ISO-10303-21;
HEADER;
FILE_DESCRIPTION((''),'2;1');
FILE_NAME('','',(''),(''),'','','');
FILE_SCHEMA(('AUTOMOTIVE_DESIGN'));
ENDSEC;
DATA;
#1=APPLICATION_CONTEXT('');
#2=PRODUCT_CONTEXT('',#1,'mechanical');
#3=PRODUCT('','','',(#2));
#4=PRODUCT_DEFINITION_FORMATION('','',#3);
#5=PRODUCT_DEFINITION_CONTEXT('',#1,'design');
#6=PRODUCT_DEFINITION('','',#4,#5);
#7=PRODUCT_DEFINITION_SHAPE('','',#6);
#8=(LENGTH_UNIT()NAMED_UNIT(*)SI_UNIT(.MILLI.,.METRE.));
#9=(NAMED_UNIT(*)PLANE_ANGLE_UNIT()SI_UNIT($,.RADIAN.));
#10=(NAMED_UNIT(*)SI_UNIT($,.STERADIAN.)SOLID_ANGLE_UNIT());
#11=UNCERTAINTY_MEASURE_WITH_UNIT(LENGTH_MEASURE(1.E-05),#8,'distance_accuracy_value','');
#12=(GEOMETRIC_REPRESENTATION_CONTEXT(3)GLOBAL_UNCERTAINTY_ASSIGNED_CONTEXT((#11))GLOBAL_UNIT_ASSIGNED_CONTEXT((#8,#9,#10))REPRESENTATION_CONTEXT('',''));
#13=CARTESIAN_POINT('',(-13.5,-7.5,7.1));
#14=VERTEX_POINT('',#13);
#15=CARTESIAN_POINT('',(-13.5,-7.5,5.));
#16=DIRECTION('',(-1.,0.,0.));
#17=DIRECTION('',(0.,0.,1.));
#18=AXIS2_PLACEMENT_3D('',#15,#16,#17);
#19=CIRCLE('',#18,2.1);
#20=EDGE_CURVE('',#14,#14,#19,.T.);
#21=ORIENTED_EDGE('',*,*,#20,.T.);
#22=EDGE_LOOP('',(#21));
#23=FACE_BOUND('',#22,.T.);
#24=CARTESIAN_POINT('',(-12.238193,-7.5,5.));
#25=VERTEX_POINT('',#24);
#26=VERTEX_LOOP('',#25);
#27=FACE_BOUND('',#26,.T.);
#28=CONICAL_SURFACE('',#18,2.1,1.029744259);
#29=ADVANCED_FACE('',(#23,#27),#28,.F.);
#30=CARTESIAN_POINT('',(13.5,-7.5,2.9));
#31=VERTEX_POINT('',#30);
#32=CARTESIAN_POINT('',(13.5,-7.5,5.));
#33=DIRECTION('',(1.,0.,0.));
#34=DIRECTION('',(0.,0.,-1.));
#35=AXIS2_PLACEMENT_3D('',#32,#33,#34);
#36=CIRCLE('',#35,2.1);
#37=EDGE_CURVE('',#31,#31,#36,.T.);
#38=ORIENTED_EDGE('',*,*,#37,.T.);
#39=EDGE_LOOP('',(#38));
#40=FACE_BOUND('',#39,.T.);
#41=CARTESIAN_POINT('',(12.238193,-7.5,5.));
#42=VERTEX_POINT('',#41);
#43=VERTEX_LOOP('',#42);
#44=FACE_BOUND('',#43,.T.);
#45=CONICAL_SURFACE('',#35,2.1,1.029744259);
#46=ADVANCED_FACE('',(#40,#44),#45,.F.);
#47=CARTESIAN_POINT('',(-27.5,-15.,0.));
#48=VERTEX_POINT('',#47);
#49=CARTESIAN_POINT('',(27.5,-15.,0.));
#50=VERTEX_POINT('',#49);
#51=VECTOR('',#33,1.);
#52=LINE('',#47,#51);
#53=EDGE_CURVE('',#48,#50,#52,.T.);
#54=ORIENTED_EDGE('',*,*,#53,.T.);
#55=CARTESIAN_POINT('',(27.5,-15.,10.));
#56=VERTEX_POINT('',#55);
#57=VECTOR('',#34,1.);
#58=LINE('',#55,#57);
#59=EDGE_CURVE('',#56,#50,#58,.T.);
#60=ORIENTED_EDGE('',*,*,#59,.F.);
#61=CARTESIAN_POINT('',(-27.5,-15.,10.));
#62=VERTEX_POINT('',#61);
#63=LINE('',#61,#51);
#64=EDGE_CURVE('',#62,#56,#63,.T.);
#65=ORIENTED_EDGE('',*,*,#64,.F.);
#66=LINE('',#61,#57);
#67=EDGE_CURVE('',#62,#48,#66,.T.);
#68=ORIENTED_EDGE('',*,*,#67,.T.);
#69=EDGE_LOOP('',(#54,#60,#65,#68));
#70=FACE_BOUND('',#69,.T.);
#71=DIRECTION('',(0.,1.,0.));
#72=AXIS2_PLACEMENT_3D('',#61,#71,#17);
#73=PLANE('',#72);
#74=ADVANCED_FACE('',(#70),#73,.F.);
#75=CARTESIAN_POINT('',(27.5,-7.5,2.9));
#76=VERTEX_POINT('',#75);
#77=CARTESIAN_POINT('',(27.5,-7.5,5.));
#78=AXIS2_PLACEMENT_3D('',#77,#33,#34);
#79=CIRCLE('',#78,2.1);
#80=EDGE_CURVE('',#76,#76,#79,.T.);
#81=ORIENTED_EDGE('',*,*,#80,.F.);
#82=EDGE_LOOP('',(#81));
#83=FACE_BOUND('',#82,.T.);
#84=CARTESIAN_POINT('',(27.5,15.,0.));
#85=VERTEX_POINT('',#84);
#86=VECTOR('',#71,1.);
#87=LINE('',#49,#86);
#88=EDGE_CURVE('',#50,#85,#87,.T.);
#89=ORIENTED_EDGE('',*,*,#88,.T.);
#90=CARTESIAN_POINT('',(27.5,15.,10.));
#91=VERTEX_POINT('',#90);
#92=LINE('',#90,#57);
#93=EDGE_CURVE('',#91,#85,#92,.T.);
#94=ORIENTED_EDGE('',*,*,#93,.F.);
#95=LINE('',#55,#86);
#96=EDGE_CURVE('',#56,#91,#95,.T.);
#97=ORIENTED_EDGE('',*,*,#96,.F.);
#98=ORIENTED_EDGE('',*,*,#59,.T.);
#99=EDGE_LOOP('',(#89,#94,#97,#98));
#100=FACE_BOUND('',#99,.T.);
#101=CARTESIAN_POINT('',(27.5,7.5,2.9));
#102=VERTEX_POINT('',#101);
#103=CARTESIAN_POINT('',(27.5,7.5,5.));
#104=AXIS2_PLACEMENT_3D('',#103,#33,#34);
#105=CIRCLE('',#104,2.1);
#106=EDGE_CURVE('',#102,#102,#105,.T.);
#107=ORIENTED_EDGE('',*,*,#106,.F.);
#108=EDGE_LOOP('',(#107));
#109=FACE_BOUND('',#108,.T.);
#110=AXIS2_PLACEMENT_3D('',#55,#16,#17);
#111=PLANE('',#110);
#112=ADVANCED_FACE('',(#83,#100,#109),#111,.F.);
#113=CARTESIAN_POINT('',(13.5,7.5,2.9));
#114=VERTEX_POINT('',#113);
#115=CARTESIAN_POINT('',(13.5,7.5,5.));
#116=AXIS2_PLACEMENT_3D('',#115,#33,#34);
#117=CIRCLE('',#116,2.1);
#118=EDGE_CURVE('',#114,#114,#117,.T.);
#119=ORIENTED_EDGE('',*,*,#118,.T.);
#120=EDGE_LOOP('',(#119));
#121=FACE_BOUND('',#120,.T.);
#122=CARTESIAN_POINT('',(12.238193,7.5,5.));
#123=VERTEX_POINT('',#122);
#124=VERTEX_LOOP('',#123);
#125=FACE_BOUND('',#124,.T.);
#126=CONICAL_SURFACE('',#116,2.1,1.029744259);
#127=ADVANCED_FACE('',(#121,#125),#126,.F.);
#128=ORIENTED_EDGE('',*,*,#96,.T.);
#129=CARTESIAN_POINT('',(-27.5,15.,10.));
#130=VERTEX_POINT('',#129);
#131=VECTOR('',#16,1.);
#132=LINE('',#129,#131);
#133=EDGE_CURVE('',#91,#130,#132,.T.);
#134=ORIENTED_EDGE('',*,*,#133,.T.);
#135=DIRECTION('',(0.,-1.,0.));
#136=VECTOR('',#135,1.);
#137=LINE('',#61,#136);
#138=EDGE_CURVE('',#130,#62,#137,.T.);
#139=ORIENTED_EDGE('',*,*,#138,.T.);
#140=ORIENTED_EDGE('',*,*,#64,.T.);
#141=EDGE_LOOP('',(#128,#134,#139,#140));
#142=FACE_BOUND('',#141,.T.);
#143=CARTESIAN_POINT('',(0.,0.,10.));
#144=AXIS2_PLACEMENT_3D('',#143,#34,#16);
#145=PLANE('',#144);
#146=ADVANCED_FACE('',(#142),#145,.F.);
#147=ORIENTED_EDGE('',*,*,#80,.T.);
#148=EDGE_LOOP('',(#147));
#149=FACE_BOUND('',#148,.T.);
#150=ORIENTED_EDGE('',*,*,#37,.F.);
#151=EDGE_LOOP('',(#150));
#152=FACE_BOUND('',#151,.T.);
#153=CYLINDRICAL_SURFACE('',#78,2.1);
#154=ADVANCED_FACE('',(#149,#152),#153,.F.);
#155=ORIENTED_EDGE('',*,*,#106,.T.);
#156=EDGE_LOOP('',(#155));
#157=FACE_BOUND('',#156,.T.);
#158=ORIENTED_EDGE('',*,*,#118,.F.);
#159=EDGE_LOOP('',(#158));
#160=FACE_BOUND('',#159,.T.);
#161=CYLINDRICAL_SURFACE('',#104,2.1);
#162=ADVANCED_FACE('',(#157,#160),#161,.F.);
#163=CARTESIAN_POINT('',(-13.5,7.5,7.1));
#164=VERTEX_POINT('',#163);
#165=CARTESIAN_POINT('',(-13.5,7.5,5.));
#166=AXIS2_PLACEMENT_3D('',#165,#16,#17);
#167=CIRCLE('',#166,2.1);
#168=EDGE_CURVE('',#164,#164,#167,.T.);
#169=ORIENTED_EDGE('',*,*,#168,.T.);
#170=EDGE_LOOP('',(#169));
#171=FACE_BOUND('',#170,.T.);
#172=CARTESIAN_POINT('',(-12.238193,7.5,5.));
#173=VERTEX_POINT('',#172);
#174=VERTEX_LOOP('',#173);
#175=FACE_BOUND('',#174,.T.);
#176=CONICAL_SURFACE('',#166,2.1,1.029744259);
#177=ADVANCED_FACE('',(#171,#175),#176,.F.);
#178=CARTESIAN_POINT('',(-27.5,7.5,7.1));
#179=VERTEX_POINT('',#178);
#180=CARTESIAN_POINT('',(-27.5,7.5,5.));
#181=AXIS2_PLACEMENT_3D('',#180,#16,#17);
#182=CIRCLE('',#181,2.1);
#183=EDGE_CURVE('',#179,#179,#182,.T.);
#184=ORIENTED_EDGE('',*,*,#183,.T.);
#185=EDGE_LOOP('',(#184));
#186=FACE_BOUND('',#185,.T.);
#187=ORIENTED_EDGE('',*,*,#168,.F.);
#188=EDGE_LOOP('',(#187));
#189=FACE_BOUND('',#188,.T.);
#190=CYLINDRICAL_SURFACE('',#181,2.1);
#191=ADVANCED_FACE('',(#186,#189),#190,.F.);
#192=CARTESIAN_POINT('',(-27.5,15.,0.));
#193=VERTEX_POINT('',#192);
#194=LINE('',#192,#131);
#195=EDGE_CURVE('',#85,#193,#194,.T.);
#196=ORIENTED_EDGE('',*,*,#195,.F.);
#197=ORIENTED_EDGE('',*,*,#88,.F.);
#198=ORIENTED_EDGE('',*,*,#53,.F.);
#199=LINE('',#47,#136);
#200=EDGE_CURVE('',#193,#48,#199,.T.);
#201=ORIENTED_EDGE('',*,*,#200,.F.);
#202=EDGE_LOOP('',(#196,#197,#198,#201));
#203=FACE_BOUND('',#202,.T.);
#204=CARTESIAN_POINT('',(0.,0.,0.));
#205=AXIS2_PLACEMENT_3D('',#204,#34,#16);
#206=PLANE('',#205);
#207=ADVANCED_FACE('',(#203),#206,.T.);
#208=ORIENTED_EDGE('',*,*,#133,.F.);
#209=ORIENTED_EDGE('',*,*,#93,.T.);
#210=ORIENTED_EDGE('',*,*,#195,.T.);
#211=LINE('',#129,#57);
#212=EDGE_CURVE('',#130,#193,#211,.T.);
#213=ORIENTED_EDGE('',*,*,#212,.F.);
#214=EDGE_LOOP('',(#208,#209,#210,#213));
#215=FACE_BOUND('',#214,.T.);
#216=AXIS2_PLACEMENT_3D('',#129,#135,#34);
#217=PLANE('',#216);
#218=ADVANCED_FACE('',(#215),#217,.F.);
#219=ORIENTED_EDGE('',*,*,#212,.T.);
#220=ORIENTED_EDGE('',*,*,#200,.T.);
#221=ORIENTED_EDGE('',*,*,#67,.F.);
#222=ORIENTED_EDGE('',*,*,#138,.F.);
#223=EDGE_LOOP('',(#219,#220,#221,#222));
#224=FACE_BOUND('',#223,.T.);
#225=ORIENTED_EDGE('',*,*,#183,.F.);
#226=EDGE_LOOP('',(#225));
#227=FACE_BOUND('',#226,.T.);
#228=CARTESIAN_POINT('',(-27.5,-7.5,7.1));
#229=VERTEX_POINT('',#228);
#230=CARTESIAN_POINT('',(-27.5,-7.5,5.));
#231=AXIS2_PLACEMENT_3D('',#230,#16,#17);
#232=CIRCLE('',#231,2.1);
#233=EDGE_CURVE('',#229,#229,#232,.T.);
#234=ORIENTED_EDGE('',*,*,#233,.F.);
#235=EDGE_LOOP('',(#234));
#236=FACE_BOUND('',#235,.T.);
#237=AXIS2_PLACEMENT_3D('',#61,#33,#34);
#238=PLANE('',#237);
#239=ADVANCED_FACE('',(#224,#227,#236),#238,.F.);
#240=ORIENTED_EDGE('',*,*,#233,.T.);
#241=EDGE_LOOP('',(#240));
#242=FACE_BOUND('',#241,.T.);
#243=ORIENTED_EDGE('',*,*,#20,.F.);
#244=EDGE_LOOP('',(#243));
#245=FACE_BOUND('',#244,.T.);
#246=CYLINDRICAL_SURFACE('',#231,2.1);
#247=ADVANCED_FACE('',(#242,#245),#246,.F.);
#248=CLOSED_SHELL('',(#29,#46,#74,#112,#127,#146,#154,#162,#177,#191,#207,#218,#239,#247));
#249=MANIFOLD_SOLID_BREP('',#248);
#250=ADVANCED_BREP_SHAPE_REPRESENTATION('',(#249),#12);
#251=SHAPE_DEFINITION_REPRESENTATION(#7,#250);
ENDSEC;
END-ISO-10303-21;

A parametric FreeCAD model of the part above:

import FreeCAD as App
import Part
import Sketcher

V = App.Vector
Q = App.Units.Quantity

doc = App.newDocument("Part")
body = doc.addObject("PartDesign::Body", "Body")

# Sketch on XY plane
sketch1 = doc.addObject("Sketcher::SketchObject", "Sketch")
body.addObject(sketch1)
sketch1.AttachmentSupport = (doc.XY_Plane, [""])
sketch1.MapMode = "FlatFace"
sketch1.addGeometry(Part.LineSegment(V(-28, 15, 0), V(-28, -15, 0)), False)
sketch1.addGeometry(Part.LineSegment(V(-28, -15, 0), V(28, -15, 0)), False)
sketch1.addGeometry(Part.LineSegment(V(28, -15, 0), V(28, 15, 0)), False)
sketch1.addGeometry(Part.LineSegment(V(28, 15, 0), V(-28, 15, 0)), False)
sketch1.addConstraint(Sketcher.Constraint("Coincident", 0, 2, 1, 1))
sketch1.addConstraint(Sketcher.Constraint("Coincident", 1, 2, 2, 1))
sketch1.addConstraint(Sketcher.Constraint("Coincident", 2, 2, 3, 1))
sketch1.addConstraint(Sketcher.Constraint("Coincident", 3, 2, 0, 1))
sketch1.addConstraint(Sketcher.Constraint("Vertical", 0))
sketch1.addConstraint(Sketcher.Constraint("Horizontal", 1))
sketch1.addConstraint(Sketcher.Constraint("Vertical", 2))
sketch1.addConstraint(Sketcher.Constraint("Horizontal", 3))
sketch1.addConstraint(Sketcher.Constraint("Symmetric", 0, 2, 2, 2, -1, 1))
sketch1.addConstraint(Sketcher.Constraint("DistanceX", 1, 1, 1, 2, 55.0))
sketch1.addConstraint(Sketcher.Constraint("DistanceY", 0, 2, 0, 1, 30.0))
pad1 = doc.addObject("PartDesign::Pad", "Pad")
body.addObject(pad1)
pad1.Profile = sketch1
pad1.Length = 10

# Sketch on XZ plane
sketch2 = doc.addObject("Sketcher::SketchObject", "Sketch001")
body.addObject(sketch2)
sketch2.AttachmentSupport = (doc.XZ_Plane, [""])
sketch2.MapMode = "FlatFace"
sketch2.AttachmentOffset = App.Placement(V(0, 0, -7.5), App.Rotation())
sketch2.addGeometry(Part.LineSegment(V(-12.2, 5, 0), V(-27.5, 5, 0)), False)
sketch2.addGeometry(Part.LineSegment(V(-27.5, 5, 0), V(-27.5, 7.1, 0)), False)
sketch2.addGeometry(Part.LineSegment(V(-27.5, 7.1, 0), V(-13.5, 7.1, 0)), False)
sketch2.addGeometry(Part.LineSegment(V(-13.5, 7.1, 0), V(-12.2, 5, 0)), False)
sketch2.addGeometry(Part.LineSegment(V(-27.5, 5, 0), V(-12.2, 5, 0)), True)  # axis
sketch2.addConstraint(Sketcher.Constraint("Coincident", 0, 2, 1, 1))
sketch2.addConstraint(Sketcher.Constraint("Coincident", 1, 2, 2, 1))
sketch2.addConstraint(Sketcher.Constraint("Coincident", 2, 2, 3, 1))
sketch2.addConstraint(Sketcher.Constraint("Coincident", 3, 2, 0, 1))
sketch2.addConstraint(Sketcher.Constraint("Horizontal", 0))
sketch2.addConstraint(Sketcher.Constraint("Vertical", 1))
sketch2.addConstraint(Sketcher.Constraint("Horizontal", 2))
sketch2.addConstraint(Sketcher.Constraint("Horizontal", 4))
sketch2.addConstraint(Sketcher.Constraint("Coincident", 4, 1, 0, 2))
sketch2.addConstraint(Sketcher.Constraint("Equal", 0, 4))
sketch2.addConstraint(Sketcher.Constraint("DistanceX", 2, 1, 2, 2, 14.0))
sketch2.addConstraint(Sketcher.Constraint("Angle", 3, Q("-59 deg")))
sketch2.addConstraint(Sketcher.Constraint("DistanceY", 1, 1, 1, 2, 2.1))
sketch2.addConstraint(Sketcher.Constraint("DistanceY", -1, 1, 0, 2, 5.0))
sketch2.addConstraint(Sketcher.Constraint("DistanceX", 0, 2, -1, 1, 27.5))
groove = doc.addObject("PartDesign::Groove", "Groove")
body.addObject(groove)
groove.Profile = sketch2
groove.ReferenceAxis = (sketch2, ["Axis0"])
groove.Angle = 360
doc.recompute()

linearpattern = doc.addObject("PartDesign::LinearPattern", "LinearPattern")
body.addObject(linearpattern)
linearpattern.Originals = [groove]
linearpattern.Direction = (doc.Y_Axis, [""])
linearpattern.Mode = "offset"
linearpattern.Offset = 15
linearpattern.Occurrences = 2
linearpattern.Reversed = True
body.Tip = linearpattern
doc.recompute()

mirrored = doc.addObject("PartDesign::Mirrored", "Mirrored")
body.addObject(mirrored)
mirrored.Originals = [groove]
mirrored.MirrorPlane = (doc.YZ_Plane, [""])
body.Tip = mirrored

# Sketch on XZ plane
sketch3 = doc.addObject("Sketcher::SketchObject", "Sketch002")
body.addObject(sketch3)
sketch3.AttachmentSupport = (doc.XZ_Plane, [""])
sketch3.MapMode = "FlatFace"
sketch3.AttachmentOffset = App.Placement(V(0, 0, 7.5), App.Rotation())
sketch3.addGeometry(Part.LineSegment(V(27.5, 5, 0), V(12.2, 5, 0)), False)
sketch3.addGeometry(Part.LineSegment(V(12.2, 5, 0), V(13.5, 7.1, 0)), False)
sketch3.addGeometry(Part.LineSegment(V(13.5, 7.1, 0), V(27.5, 7.1, 0)), False)
sketch3.addGeometry(Part.LineSegment(V(27.5, 7.1, 0), V(27.5, 5, 0)), False)
sketch3.addGeometry(Part.LineSegment(V(12.2, 5, 0), V(27.5, 5, 0)), True)  # axis
sketch3.addConstraint(Sketcher.Constraint("Coincident", 0, 2, 1, 1))
sketch3.addConstraint(Sketcher.Constraint("Coincident", 1, 2, 2, 1))
sketch3.addConstraint(Sketcher.Constraint("Coincident", 2, 2, 3, 1))
sketch3.addConstraint(Sketcher.Constraint("Coincident", 3, 2, 0, 1))
sketch3.addConstraint(Sketcher.Constraint("Horizontal", 0))
sketch3.addConstraint(Sketcher.Constraint("Horizontal", 2))
sketch3.addConstraint(Sketcher.Constraint("Vertical", 3))
sketch3.addConstraint(Sketcher.Constraint("Horizontal", 4))
sketch3.addConstraint(Sketcher.Constraint("Coincident", 4, 1, 0, 2))
sketch3.addConstraint(Sketcher.Constraint("Vertical", 2, 2, 4, 2))
sketch3.addConstraint(Sketcher.Constraint("DistanceX", 2, 1, 2, 2, 14.0))
sketch3.addConstraint(Sketcher.Constraint("Angle", 1, Q("59 deg")))
sketch3.addConstraint(Sketcher.Constraint("DistanceY", 3, 2, 3, 1, 2.1))
sketch3.addConstraint(Sketcher.Constraint("DistanceY", -1, 1, 0, 2, 5.0))
sketch3.addConstraint(Sketcher.Constraint("DistanceX", -1, 1, 1, 2, 13.5))
groove2 = doc.addObject("PartDesign::Groove", "Groove001")
body.addObject(groove2)
groove2.Profile = sketch3
groove2.ReferenceAxis = (sketch3, ["Axis0"])
groove2.Angle = 360

doc.recompute()
